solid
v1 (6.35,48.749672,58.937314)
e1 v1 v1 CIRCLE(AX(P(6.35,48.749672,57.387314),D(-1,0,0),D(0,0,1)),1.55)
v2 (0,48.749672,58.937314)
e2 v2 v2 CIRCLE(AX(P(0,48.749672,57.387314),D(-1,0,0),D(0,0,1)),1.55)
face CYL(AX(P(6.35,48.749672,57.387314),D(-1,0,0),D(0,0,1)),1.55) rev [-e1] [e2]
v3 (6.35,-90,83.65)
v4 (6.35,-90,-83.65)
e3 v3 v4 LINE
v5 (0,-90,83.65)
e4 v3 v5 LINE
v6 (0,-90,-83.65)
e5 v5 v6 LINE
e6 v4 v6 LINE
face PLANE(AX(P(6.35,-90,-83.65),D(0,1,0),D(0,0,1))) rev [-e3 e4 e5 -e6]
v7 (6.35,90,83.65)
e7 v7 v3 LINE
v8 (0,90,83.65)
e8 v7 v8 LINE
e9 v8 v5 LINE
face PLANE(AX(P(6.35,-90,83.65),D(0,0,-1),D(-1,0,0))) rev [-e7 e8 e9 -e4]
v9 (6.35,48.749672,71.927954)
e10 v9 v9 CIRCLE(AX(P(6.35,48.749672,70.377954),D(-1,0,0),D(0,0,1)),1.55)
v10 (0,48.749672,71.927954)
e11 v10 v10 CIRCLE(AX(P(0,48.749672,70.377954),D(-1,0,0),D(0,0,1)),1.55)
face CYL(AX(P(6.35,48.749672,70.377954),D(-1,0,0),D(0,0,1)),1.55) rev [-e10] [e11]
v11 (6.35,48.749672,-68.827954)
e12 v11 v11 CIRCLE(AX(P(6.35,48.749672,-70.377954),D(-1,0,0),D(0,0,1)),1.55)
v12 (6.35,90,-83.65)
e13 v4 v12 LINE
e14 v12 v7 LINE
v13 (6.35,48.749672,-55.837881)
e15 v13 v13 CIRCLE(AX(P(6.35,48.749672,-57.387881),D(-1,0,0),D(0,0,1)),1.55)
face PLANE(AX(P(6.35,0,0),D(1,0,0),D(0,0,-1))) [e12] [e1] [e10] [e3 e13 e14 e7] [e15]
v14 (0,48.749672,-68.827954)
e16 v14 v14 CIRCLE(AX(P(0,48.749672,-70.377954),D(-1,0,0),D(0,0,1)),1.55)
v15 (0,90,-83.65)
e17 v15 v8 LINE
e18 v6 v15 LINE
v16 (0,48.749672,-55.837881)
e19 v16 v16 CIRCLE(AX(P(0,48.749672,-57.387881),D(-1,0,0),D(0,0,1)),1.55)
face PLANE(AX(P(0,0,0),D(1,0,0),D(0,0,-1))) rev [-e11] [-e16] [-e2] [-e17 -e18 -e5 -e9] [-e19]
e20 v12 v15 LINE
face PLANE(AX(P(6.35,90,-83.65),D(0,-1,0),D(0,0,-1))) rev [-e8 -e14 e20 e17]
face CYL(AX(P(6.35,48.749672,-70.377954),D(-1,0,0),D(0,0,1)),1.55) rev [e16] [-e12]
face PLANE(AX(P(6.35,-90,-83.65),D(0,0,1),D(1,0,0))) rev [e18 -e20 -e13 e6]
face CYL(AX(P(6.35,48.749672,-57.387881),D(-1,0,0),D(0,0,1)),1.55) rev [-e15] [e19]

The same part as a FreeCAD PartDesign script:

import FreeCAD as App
import Part
import Sketcher
Q = App.Units.Quantity

doc = App.newDocument("Part")
body = doc.addObject("PartDesign::Body", "Body")

# Sketch on YZ plane
sketch1 = body.newObject("Sketcher::SketchObject", "Sketch")
sketch1.AttachmentSupport = (doc.getObject("YZ_Plane"), [""])
sketch1.MapMode = "FlatFace"
sketch1.addGeometry([
    Part.LineSegment(App.Vector(90, 84, 0), App.Vector(-90, 84, 0)),
    Part.LineSegment(App.Vector(-90, 84, 0), App.Vector(-90, -84, 0)),
    Part.LineSegment(App.Vector(-90, -84, 0), App.Vector(90, -84, 0)),
    Part.LineSegment(App.Vector(90, -84, 0), App.Vector(90, 84, 0)),
], False)
sketch1.addConstraint([
    Sketcher.Constraint("Coincident", 0, 2, 1, 1),
    Sketcher.Constraint("Coincident", 1, 2, 2, 1),
    Sketcher.Constraint("Coincident", 2, 2, 3, 1),
    Sketcher.Constraint("Coincident", 3, 2, 0, 1),
    Sketcher.Constraint("Horizontal", 0),
    Sketcher.Constraint("Vertical", 1),
    Sketcher.Constraint("Horizontal", 2),
    Sketcher.Constraint("Vertical", 3),
    Sketcher.Constraint("Symmetric", 0, 2, 2, 2, -1, 1),
    Sketcher.Constraint("DistanceX", 0, 2, 0, 1, Q("180 mm")),
    Sketcher.Constraint("DistanceY", 1, 2, 1, 1, Q("167.3 mm")),
])
pad1 = body.newObject("PartDesign::Pad", "Pad")
pad1.Profile = sketch1
pad1.Length = 6.35

# Sketch on YZ plane
sketch2 = body.newObject("Sketcher::SketchObject", "Sketch001")
sketch2.AttachmentSupport = (doc.getObject("YZ_Plane"), [""])
sketch2.MapMode = "FlatFace"
sketch2.addGeometry([
    Part.Circle(App.Vector(48.7, 57.4, 0), App.Vector(0, 0, 1), 1.6),
    Part.Circle(App.Vector(48.7, 70.4, 0), App.Vector(0, 0, 1), 1.6),
    Part.Circle(App.Vector(48.7, -57.4, 0), App.Vector(0, 0, 1), 1.6),
    Part.Circle(App.Vector(48.7, -70.4, 0), App.Vector(0, 0, 1), 1.6),
], False)
sketch2.addConstraint([
    Sketcher.Constraint("Equal", 0, 1),
    Sketcher.Constraint("Equal", 1, 2),
    Sketcher.Constraint("Equal", 2, 3),
    Sketcher.Constraint("Symmetric", 1, 3, 3, 3, -1),
    Sketcher.Constraint("Vertical", 0, 3, 1, 3),
    Sketcher.Constraint("Vertical", 1, 3, 2, 3),
    Sketcher.Constraint("Diameter", 0, Q("3.1 mm")),
    Sketcher.Constraint("DistanceY", 2, 3, -1, 1, Q("57.387881 mm")),
    Sketcher.Constraint("DistanceY", 0, 3, 1, 3, Q("12.99064 mm")),
    Sketcher.Constraint("DistanceX", -1, 1, 0, 3, Q("48.749672 mm")),
    Sketcher.Constraint("DistanceY", -1, 1, 0, 3, Q("57.387314 mm")),
])
pocket1 = body.newObject("PartDesign::Pocket", "Pocket")
pocket1.Profile = sketch2
pocket1.Type = "ThroughAll"
pocket1.Reversed = True

doc.recompute()
